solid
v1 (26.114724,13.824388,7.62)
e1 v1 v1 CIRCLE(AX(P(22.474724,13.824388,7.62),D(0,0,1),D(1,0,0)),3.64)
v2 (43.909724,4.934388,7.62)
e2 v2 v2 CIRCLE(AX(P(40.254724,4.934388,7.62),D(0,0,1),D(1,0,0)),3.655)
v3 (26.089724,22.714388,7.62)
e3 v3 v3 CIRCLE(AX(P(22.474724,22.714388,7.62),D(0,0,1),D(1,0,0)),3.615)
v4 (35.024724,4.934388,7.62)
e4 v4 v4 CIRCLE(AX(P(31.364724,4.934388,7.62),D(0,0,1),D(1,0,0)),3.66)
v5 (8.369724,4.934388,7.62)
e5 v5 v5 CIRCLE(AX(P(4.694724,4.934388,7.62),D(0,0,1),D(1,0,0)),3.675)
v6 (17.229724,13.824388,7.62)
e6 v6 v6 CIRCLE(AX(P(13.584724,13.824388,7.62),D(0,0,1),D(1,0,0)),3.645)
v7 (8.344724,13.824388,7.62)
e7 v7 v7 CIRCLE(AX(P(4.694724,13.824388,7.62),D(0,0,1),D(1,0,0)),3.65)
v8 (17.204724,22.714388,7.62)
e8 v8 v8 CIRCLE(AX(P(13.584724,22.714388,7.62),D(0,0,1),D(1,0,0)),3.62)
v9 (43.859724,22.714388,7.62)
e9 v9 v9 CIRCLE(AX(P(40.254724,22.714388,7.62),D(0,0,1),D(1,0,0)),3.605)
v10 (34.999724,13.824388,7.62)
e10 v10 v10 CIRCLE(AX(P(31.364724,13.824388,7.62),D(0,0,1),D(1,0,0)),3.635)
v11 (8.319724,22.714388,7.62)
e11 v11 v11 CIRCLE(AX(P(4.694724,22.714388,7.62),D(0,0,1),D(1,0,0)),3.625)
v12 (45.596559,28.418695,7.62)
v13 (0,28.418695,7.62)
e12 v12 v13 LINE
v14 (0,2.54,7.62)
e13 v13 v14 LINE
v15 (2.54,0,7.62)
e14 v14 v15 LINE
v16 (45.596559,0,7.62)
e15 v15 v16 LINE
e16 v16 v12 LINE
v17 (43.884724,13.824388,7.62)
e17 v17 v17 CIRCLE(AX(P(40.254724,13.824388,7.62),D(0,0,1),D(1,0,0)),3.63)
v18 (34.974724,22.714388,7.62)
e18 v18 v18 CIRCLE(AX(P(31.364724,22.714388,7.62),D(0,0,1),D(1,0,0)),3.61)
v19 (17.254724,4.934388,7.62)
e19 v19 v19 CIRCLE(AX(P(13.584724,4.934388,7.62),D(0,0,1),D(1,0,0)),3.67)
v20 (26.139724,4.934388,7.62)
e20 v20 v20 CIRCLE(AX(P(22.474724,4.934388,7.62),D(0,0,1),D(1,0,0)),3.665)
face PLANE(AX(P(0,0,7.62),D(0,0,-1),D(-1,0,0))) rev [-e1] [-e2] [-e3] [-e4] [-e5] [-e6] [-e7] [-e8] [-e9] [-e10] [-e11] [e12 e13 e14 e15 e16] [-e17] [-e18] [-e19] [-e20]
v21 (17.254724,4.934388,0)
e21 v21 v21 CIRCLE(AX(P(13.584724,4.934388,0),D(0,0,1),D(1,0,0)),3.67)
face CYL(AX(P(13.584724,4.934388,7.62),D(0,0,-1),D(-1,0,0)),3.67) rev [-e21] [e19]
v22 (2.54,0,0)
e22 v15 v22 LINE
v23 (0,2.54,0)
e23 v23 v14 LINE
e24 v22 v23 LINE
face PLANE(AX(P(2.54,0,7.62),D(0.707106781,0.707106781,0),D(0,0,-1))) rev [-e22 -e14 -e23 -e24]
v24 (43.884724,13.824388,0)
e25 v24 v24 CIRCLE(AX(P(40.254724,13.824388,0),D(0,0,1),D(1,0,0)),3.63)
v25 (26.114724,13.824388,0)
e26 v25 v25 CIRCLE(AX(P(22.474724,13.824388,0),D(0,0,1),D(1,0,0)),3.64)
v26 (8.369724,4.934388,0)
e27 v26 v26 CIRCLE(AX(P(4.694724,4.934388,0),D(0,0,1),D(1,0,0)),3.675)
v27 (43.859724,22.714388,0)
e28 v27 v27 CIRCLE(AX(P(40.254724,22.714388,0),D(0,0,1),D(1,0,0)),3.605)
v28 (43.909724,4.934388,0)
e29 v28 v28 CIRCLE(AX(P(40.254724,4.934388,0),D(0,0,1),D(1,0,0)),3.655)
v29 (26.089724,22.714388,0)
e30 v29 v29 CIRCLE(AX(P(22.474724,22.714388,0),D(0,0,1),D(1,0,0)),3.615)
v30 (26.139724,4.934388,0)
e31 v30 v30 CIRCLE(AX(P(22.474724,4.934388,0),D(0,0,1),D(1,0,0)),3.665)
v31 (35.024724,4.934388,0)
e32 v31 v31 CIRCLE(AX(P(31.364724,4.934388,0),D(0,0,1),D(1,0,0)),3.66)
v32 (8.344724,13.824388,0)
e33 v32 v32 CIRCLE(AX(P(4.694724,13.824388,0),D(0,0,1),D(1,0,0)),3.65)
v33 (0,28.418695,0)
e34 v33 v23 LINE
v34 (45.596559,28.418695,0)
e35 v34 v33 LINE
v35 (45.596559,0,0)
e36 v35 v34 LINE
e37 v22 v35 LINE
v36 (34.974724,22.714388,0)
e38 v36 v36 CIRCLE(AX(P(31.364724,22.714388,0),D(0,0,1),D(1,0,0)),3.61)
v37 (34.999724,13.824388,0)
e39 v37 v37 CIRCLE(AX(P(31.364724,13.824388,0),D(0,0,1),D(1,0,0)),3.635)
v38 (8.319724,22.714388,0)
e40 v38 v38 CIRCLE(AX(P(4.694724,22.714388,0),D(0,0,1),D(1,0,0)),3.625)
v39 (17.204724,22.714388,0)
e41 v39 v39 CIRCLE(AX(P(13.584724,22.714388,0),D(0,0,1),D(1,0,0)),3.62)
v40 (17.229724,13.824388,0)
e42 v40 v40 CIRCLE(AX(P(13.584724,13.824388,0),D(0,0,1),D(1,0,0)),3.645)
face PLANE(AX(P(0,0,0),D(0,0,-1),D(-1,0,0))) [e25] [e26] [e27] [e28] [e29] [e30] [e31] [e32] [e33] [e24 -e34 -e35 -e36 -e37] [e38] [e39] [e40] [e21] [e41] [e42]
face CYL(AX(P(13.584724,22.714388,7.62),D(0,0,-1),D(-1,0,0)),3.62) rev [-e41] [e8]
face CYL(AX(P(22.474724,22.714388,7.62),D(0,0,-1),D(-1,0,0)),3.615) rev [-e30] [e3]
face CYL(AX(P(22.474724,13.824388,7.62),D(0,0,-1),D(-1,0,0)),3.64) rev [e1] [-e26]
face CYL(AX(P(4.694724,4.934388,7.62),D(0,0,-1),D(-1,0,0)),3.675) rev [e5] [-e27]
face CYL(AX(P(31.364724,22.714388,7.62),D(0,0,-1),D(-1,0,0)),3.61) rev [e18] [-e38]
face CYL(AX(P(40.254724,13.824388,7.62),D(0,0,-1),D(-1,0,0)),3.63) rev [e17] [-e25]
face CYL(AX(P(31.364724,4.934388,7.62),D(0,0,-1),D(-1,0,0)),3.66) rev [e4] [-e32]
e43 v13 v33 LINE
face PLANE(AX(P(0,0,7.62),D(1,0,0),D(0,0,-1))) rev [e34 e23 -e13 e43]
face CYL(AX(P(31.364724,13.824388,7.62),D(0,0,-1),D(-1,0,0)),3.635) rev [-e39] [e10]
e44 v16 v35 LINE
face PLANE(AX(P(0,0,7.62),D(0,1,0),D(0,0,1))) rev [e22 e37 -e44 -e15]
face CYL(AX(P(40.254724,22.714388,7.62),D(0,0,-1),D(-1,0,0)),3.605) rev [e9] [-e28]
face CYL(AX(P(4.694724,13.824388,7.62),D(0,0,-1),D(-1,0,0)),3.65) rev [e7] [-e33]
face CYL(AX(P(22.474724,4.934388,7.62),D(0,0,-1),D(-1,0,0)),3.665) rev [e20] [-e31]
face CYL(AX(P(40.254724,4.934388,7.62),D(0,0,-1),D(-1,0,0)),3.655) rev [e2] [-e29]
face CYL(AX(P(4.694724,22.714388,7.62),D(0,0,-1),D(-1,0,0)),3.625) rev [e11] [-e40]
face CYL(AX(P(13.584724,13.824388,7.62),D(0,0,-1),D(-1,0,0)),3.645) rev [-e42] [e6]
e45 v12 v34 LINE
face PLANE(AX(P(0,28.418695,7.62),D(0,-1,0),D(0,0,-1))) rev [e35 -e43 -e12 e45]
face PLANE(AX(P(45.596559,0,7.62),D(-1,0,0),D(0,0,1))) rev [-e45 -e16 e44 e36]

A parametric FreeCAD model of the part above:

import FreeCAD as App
import Part
import Sketcher
Q = App.Units.Quantity


def edges_at(feature, points):
    """Names of the edges that pass closest to the given points."""
    edges = feature.Shape.Edges
    near = lambda p: min(range(len(edges)), key=lambda i: edges[i].distToShape(Part.Vertex(*p))[0])
    return sorted({f"Edge{near(p) + 1}" for p in points})

doc = App.newDocument("Part")
body = doc.addObject("PartDesign::Body", "Body")

sketch1 = doc.addObject("Sketcher::SketchObject", "Sketch")
body.addObject(sketch1)
sketch1.AttachmentSupport = (doc.XY_Plane, [""])
sketch1.MapMode = "FlatFace"
sketch1.addGeometry([
    Part.LineSegment(App.Vector(0, 28.4, 0), App.Vector(0, 0, 0)),
    Part.LineSegment(App.Vector(0, 0, 0), App.Vector(45.6, 0, 0)),
    Part.LineSegment(App.Vector(45.6, 0, 0), App.Vector(45.6, 28.4, 0)),
    Part.LineSegment(App.Vector(45.6, 28.4, 0), App.Vector(0, 28.4, 0)),
    Part.Circle(App.Vector(4.7, 4.9, 0), App.Vector(0, 0, 1), 3.7),
    Part.Circle(App.Vector(13.6, 4.9, 0), App.Vector(0, 0, 1), 3.7),
    Part.Circle(App.Vector(22.5, 4.9, 0), App.Vector(0, 0, 1), 3.7),
    Part.Circle(App.Vector(31.4, 4.9, 0), App.Vector(0, 0, 1), 3.7),
    Part.Circle(App.Vector(40.3, 4.9, 0), App.Vector(0, 0, 1), 3.7),
    Part.Circle(App.Vector(4.7, 13.8, 0), App.Vector(0, 0, 1), 3.6),
    Part.Circle(App.Vector(13.6, 13.8, 0), App.Vector(0, 0, 1), 3.6),
    Part.Circle(App.Vector(4.7, 22.7, 0), App.Vector(0, 0, 1), 3.6),
    Part.Circle(App.Vector(13.6, 22.7, 0), App.Vector(0, 0, 1), 3.6),
    Part.Circle(App.Vector(22.5, 13.8, 0), App.Vector(0, 0, 1), 3.6),
    Part.Circle(App.Vector(31.4, 13.8, 0), App.Vector(0, 0, 1), 3.6),
    Part.Circle(App.Vector(40.3, 13.8, 0), App.Vector(0, 0, 1), 3.6),
    Part.Circle(App.Vector(22.5, 22.7, 0), App.Vector(0, 0, 1), 3.6),
    Part.Circle(App.Vector(31.4, 22.7, 0), App.Vector(0, 0, 1), 3.6),
    Part.Circle(App.Vector(40.3, 22.7, 0), App.Vector(0, 0, 1), 3.6),
], False)
sketch1.addConstraint([
    Sketcher.Constraint("Coincident", 0, 2, 1, 1),
    Sketcher.Constraint("Coincident", 1, 2, 2, 1),
    Sketcher.Constraint("Coincident", 2, 2, 3, 1),
    Sketcher.Constraint("Coincident", 3, 2, 0, 1),
    Sketcher.Constraint("Vertical", 0),
    Sketcher.Constraint("Horizontal", 1),
    Sketcher.Constraint("Vertical", 2),
    Sketcher.Constraint("Horizontal", 3),
    Sketcher.Constraint("Coincident", 0, 2, -1, 1),
    Sketcher.Constraint("Horizontal", 4, 3, 5, 3),
    Sketcher.Constraint("Horizontal", 5, 3, 6, 3),
    Sketcher.Constraint("Horizontal", 6, 3, 7, 3),
    Sketcher.Constraint("Horizontal", 7, 3, 8, 3),
    Sketcher.Constraint("Horizontal", 9, 3, 10, 3),
    Sketcher.Constraint("Horizontal", 11, 3, 12, 3),
    Sketcher.Constraint("Horizontal", 10, 3, 13, 3),
    Sketcher.Constraint("Horizontal", 13, 3, 14, 3),
    Sketcher.Constraint("Horizontal", 14, 3, 15, 3),
    Sketcher.Constraint("Horizontal", 12, 3, 16, 3),
    Sketcher.Constraint("Horizontal", 16, 3, 17, 3),
    Sketcher.Constraint("Horizontal", 17, 3, 18, 3),
    Sketcher.Constraint("Vertical", 4, 3, 9, 3),
    Sketcher.Constraint("Vertical", 5, 3, 10, 3),
    Sketcher.Constraint("Vertical", 9, 3, 11, 3),
    Sketcher.Constraint("Vertical", 10, 3, 12, 3),
    Sketcher.Constraint("Vertical", 6, 3, 13, 3),
    Sketcher.Constraint("Vertical", 7, 3, 14, 3),
    Sketcher.Constraint("Vertical", 8, 3, 15, 3),
    Sketcher.Constraint("Vertical", 13, 3, 16, 3),
    Sketcher.Constraint("Vertical", 14, 3, 17, 3),
    Sketcher.Constraint("Vertical", 15, 3, 18, 3),
    Sketcher.Constraint("DistanceX", 4, 3, 6, 3, Q("0.7 in")),
    Sketcher.Constraint("DistanceX", 5, 3, 7, 3, Q("0.7 in")),
    Sketcher.Constraint("DistanceX", 6, 3, 8, 3, Q("0.7 in")),
    Sketcher.Constraint("DistanceY", 4, 3, 11, 3, Q("0.7 in")),
    Sketcher.Constraint("Diameter", 4, 7.35),
    Sketcher.Constraint("Diameter", 5, 7.34),
    Sketcher.Constraint("Diameter", 6, 7.33),
    Sketcher.Constraint("Diameter", 7, 7.32),
    Sketcher.Constraint("Diameter", 8, 7.31),
    Sketcher.Constraint("Diameter", 9, 7.3),
    Sketcher.Constraint("Diameter", 10, 7.29),
    Sketcher.Constraint("Diameter", 11, 7.25),
    Sketcher.Constraint("Diameter", 12, 7.24),
    Sketcher.Constraint("Diameter", 13, 7.28),
    Sketcher.Constraint("Diameter", 14, 7.27),
    Sketcher.Constraint("Diameter", 15, 7.26),
    Sketcher.Constraint("Diameter", 16, 7.23),
    Sketcher.Constraint("Diameter", 17, 7.22),
    Sketcher.Constraint("Diameter", 18, 7.21),
    Sketcher.Constraint("DistanceX", 4, 3, 5, 3, Q("0.35 in")),
    Sketcher.Constraint("DistanceY", 4, 3, 9, 3, Q("0.35 in")),
    Sketcher.Constraint("DistanceX", 1, 1, 1, 2, 45.596559),
    Sketcher.Constraint("DistanceY", 0, 2, 0, 1, 28.418695),
    Sketcher.Constraint("DistanceX", -1, 1, 4, 3, 4.694724),
    Sketcher.Constraint("DistanceY", -1, 1, 4, 3, 4.934388),
])
pad1 = doc.addObject("PartDesign::Pad", "Pad")
body.addObject(pad1)
pad1.Profile = sketch1
pad1.Length = Q("0.3 in")
doc.recompute()

chamfer = doc.addObject("PartDesign::Chamfer", "Chamfer")
body.addObject(chamfer)
chamfer.Base = (pad1, edges_at(pad1, [(0, 0, 3.81)]))
chamfer.Size = Q("0.1 in")

doc.recompute()
